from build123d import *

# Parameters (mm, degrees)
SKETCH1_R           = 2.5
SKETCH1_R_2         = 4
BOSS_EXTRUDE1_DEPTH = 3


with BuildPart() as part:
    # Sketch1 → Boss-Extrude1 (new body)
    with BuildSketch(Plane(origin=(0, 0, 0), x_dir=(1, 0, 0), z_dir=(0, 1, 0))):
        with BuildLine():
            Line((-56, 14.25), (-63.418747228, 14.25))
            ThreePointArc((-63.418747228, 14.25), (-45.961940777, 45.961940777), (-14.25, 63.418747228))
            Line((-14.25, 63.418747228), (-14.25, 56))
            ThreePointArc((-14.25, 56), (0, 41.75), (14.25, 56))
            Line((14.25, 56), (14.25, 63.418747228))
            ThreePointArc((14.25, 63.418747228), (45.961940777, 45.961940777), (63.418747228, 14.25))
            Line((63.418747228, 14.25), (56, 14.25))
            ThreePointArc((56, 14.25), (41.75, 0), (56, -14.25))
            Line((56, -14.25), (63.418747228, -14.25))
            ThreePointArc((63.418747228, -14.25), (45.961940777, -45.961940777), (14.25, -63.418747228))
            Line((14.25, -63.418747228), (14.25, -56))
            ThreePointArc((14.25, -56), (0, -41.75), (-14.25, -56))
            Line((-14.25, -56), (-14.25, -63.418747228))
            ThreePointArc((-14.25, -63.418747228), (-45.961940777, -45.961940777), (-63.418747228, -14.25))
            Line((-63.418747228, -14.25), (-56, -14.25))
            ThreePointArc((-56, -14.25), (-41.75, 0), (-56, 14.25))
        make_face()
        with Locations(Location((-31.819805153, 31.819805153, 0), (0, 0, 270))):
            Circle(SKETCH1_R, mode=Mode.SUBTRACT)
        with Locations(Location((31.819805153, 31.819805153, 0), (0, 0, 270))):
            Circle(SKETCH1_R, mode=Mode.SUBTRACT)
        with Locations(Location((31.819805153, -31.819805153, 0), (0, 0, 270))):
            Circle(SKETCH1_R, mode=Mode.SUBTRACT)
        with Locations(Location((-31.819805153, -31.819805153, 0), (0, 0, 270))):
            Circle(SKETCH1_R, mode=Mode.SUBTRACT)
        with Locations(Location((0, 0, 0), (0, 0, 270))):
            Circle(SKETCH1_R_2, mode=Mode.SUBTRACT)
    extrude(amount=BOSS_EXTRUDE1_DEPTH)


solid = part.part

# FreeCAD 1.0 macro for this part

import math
import FreeCAD as App
import Part
import Sketcher
Q = App.Units.Quantity

doc = App.newDocument("Part")
params = doc.addObject("Spreadsheet::Sheet", "Params")
for row, (alias, value) in enumerate([
    ("sketch1_diameter", "5 mm"),
    ("sketch1_diameter2", "8 mm"),
    ("sketch1_radius", "65 mm"),
    ("sketch1_radius2", "14.25 mm"),
    ("pad1_length", "3 mm"),
], start=1):
    params.set(f"A{row}", alias)
    params.set(f"B{row}", "=" + value)
    params.setAlias(f"B{row}", alias)

body = doc.addObject("PartDesign::Body", "Body")

# Sketch on XZ plane
sketch1 = doc.addObject("Sketcher::SketchObject", "Sketch")
body.addObject(sketch1)
sketch1.AttachmentSupport = (doc.XZ_Plane, [""])
sketch1.MapMode = "FlatFace"
sketch1.addGeometry(Part.LineSegment(App.Vector(-63.418747, -14.25, 0), App.Vector(-56, -14.25, 0)), False)
sketch1.addGeometry(Part.ArcOfCircle(Part.Circle(App.Vector(-56, 0, 0), App.Vector(0, 0, 1), 14.25), math.radians(-90), math.radians(90)), False)
sketch1.addGeometry(Part.LineSegment(App.Vector(-56, 14.25, 0), App.Vector(-63.418747, 14.25, 0)), False)
sketch1.addGeometry(Part.ArcOfCircle(Part.Circle(App.Vector(0, 0, 0), App.Vector(0, 0, 1), 65), math.radians(102.663856), math.radians(167.336144)), False)
sketch1.addGeometry(Part.LineSegment(App.Vector(-14.25, 63.418747, 0), App.Vector(-14.25, 56, 0)), False)
sketch1.addGeometry(Part.ArcOfCircle(Part.Circle(App.Vector(0, 56, 0), App.Vector(0, 0, 1), 14.25), math.radians(180), math.radians(360)), False)
sketch1.addGeometry(Part.LineSegment(App.Vector(14.25, 56, 0), App.Vector(14.25, 63.418747, 0)), False)
sketch1.addGeometry(Part.ArcOfCircle(Part.Circle(App.Vector(0, 0, 0), App.Vector(0, 0, 1), 65), math.radians(12.663856), math.radians(77.336144)), False)
sketch1.addGeometry(Part.LineSegment(App.Vector(63.418747, 14.25, 0), App.Vector(56, 14.25, 0)), False)
sketch1.addGeometry(Part.ArcOfCircle(Part.Circle(App.Vector(56, 0, 0), App.Vector(0, 0, 1), 14.25), math.radians(90), math.radians(270)), False)
sketch1.addGeometry(Part.LineSegment(App.Vector(56, -14.25, 0), App.Vector(63.418747, -14.25, 0)), False)
sketch1.addGeometry(Part.ArcOfCircle(Part.Circle(App.Vector(0, 0, 0), App.Vector(0, 0, 1), 65), math.radians(-77.336144), math.radians(-12.663856)), False)
sketch1.addGeometry(Part.LineSegment(App.Vector(14.25, -63.418747, 0), App.Vector(14.25, -56, 0)), False)
sketch1.addGeometry(Part.ArcOfCircle(Part.Circle(App.Vector(0, -56, 0), App.Vector(0, 0, 1), 14.25), math.radians(0), math.radians(180)), False)
sketch1.addGeometry(Part.LineSegment(App.Vector(-14.25, -56, 0), App.Vector(-14.25, -63.418747, 0)), False)
sketch1.addGeometry(Part.ArcOfCircle(Part.Circle(App.Vector(0, 0, 0), App.Vector(0, 0, 1), 65), math.radians(-167.336144), math.radians(-102.663856)), False)
sketch1.addGeometry(Part.Circle(App.Vector(31.819805, 31.819805, 0), App.Vector(0, 0, 1), 2.5), False)
sketch1.addGeometry(Part.Circle(App.Vector(-31.819805, 31.819805, 0), App.Vector(0, 0, 1), 2.5), False)
sketch1.addGeometry(Part.Circle(App.Vector(31.819805, -31.819805, 0), App.Vector(0, 0, 1), 2.5), False)
sketch1.addGeometry(Part.Circle(App.Vector(0, 0, 0), App.Vector(0, 0, 1), 4), False)
sketch1.addGeometry(Part.Circle(App.Vector(-31.819805, -31.819805, 0), App.Vector(0, 0, 1), 2.5), False)
sketch1.addConstraint(Sketcher.Constraint("Tangent", 0, 2, 1, 1))
sketch1.addConstraint(Sketcher.Constraint("Tangent", 1, 2, 2, 1))
sketch1.addConstraint(Sketcher.Constraint("Coincident", 2, 2, 3, 2))
sketch1.addConstraint(Sketcher.Constraint("Coincident", 3, 1, 4, 1))
sketch1.addConstraint(Sketcher.Constraint("Tangent", 4, 2, 5, 1))
sketch1.addConstraint(Sketcher.Constraint("Tangent", 5, 2, 6, 1))
sketch1.addConstraint(Sketcher.Constraint("Coincident", 6, 2, 7, 2))
sketch1.addConstraint(Sketcher.Constraint("Coincident", 7, 1, 8, 1))
sketch1.addConstraint(Sketcher.Constraint("Tangent", 8, 2, 9, 1))
sketch1.addConstraint(Sketcher.Constraint("Tangent", 9, 2, 10, 1))
sketch1.addConstraint(Sketcher.Constraint("Coincident", 10, 2, 11, 2))
sketch1.addConstraint(Sketcher.Constraint("Coincident", 11, 1, 12, 1))
sketch1.addConstraint(Sketcher.Constraint("Tangent", 12, 2, 13, 1))
sketch1.addConstraint(Sketcher.Constraint("Tangent", 13, 2, 14, 1))
sketch1.addConstraint(Sketcher.Constraint("Coincident", 14, 2, 15, 2))
sketch1.addConstraint(Sketcher.Constraint("Coincident", 15, 1, 0, 1))
sketch1.addConstraint(Sketcher.Constraint("Horizontal", 0))
sketch1.addConstraint(Sketcher.Constraint("Horizontal", 2))
sketch1.addConstraint(Sketcher.Constraint("Vertical", 4))
sketch1.addConstraint(Sketcher.Constraint("Vertical", 6))
sketch1.addConstraint(Sketcher.Constraint("Horizontal", 8))
sketch1.addConstraint(Sketcher.Constraint("Horizontal", 10))
sketch1.addConstraint(Sketcher.Constraint("Vertical", 12))
sketch1.addConstraint(Sketcher.Constraint("Vertical", 14))
sketch1.addConstraint(Sketcher.Constraint("Coincident", 3, 3, -1, 1))
sketch1.addConstraint(Sketcher.Constraint("Coincident", 7, 3, -1, 1))
sketch1.addConstraint(Sketcher.Constraint("Coincident", 11, 3, -1, 1))
sketch1.addConstraint(Sketcher.Constraint("Coincident", 15, 3, -1, 1))
sketch1.addConstraint(Sketcher.Constraint("Coincident", 19, 3, -1, 1))
sketch1.addConstraint(Sketcher.Constraint("Equal", 1, 5))
sketch1.addConstraint(Sketcher.Constraint("Equal", 3, 7))
sketch1.addConstraint(Sketcher.Constraint("Equal", 5, 9))
sketch1.addConstraint(Sketcher.Constraint("Equal", 7, 11))
sketch1.addConstraint(Sketcher.Constraint("Equal", 9, 13))
sketch1.addConstraint(Sketcher.Constraint("Equal", 11, 15))
sketch1.addConstraint(Sketcher.Constraint("Equal", 16, 17))
sketch1.addConstraint(Sketcher.Constraint("Equal", 17, 18))
sketch1.addConstraint(Sketcher.Constraint("Equal", 18, 20))
sketch1.addConstraint(Sketcher.Constraint("Symmetric", 1, 3, 9, 3, -1, 1))
sketch1.addConstraint(Sketcher.Constraint("Symmetric", 5, 3, 13, 3, -1, 1))
sketch1.addConstraint(Sketcher.Constraint("Symmetric", 17, 3, 18, 3, -1, 1))
sketch1.addConstraint(Sketcher.Constraint("Symmetric", 16, 3, 20, 3, -1, 1))
sketch1.addConstraint(Sketcher.Constraint("Symmetric", 16, 3, 17, 3, -2))
sketch1.addConstraint(Sketcher.Constraint("PointOnObject", 1, 3, -1))
sketch1.addConstraint(Sketcher.Constraint("PointOnObject", 5, 3, -2))
sketch1.addConstraint(Sketcher.Constraint("Equal", 10, 4))
sketch1.addConstraint(Sketcher.Constraint("Diameter", 16, Q("5 mm")))
sketch1.addConstraint(Sketcher.Constraint("Diameter", 19, Q("8 mm")))
sketch1.addConstraint(Sketcher.Constraint("Radius", 3, Q("65 mm")))
sketch1.addConstraint(Sketcher.Constraint("Radius", 1, Q("14.25 mm")))
sketch1.addConstraint(Sketcher.Constraint("DistanceX", 1, 3, -1, 1, Q("56 mm")))
sketch1.addConstraint(Sketcher.Constraint("DistanceX", -1, 1, 16, 3, Q("31.819805 mm")))
sketch1.addConstraint(Sketcher.Constraint("DistanceY", -1, 1, 16, 3, Q("31.819805 mm")))
sketch1.setExpression("Constraints[46]", "Params.sketch1_diameter")
sketch1.setExpression("Constraints[47]", "Params.sketch1_diameter2")
sketch1.setExpression("Constraints[48]", "Params.sketch1_radius")
sketch1.setExpression("Constraints[49]", "Params.sketch1_radius2")
pad1 = doc.addObject("PartDesign::Pad", "Pad")
body.addObject(pad1)
pad1.Profile = sketch1
pad1.setExpression("Length", "Params.pad1_length")
pad1.Reversed = True

doc.recompute()
